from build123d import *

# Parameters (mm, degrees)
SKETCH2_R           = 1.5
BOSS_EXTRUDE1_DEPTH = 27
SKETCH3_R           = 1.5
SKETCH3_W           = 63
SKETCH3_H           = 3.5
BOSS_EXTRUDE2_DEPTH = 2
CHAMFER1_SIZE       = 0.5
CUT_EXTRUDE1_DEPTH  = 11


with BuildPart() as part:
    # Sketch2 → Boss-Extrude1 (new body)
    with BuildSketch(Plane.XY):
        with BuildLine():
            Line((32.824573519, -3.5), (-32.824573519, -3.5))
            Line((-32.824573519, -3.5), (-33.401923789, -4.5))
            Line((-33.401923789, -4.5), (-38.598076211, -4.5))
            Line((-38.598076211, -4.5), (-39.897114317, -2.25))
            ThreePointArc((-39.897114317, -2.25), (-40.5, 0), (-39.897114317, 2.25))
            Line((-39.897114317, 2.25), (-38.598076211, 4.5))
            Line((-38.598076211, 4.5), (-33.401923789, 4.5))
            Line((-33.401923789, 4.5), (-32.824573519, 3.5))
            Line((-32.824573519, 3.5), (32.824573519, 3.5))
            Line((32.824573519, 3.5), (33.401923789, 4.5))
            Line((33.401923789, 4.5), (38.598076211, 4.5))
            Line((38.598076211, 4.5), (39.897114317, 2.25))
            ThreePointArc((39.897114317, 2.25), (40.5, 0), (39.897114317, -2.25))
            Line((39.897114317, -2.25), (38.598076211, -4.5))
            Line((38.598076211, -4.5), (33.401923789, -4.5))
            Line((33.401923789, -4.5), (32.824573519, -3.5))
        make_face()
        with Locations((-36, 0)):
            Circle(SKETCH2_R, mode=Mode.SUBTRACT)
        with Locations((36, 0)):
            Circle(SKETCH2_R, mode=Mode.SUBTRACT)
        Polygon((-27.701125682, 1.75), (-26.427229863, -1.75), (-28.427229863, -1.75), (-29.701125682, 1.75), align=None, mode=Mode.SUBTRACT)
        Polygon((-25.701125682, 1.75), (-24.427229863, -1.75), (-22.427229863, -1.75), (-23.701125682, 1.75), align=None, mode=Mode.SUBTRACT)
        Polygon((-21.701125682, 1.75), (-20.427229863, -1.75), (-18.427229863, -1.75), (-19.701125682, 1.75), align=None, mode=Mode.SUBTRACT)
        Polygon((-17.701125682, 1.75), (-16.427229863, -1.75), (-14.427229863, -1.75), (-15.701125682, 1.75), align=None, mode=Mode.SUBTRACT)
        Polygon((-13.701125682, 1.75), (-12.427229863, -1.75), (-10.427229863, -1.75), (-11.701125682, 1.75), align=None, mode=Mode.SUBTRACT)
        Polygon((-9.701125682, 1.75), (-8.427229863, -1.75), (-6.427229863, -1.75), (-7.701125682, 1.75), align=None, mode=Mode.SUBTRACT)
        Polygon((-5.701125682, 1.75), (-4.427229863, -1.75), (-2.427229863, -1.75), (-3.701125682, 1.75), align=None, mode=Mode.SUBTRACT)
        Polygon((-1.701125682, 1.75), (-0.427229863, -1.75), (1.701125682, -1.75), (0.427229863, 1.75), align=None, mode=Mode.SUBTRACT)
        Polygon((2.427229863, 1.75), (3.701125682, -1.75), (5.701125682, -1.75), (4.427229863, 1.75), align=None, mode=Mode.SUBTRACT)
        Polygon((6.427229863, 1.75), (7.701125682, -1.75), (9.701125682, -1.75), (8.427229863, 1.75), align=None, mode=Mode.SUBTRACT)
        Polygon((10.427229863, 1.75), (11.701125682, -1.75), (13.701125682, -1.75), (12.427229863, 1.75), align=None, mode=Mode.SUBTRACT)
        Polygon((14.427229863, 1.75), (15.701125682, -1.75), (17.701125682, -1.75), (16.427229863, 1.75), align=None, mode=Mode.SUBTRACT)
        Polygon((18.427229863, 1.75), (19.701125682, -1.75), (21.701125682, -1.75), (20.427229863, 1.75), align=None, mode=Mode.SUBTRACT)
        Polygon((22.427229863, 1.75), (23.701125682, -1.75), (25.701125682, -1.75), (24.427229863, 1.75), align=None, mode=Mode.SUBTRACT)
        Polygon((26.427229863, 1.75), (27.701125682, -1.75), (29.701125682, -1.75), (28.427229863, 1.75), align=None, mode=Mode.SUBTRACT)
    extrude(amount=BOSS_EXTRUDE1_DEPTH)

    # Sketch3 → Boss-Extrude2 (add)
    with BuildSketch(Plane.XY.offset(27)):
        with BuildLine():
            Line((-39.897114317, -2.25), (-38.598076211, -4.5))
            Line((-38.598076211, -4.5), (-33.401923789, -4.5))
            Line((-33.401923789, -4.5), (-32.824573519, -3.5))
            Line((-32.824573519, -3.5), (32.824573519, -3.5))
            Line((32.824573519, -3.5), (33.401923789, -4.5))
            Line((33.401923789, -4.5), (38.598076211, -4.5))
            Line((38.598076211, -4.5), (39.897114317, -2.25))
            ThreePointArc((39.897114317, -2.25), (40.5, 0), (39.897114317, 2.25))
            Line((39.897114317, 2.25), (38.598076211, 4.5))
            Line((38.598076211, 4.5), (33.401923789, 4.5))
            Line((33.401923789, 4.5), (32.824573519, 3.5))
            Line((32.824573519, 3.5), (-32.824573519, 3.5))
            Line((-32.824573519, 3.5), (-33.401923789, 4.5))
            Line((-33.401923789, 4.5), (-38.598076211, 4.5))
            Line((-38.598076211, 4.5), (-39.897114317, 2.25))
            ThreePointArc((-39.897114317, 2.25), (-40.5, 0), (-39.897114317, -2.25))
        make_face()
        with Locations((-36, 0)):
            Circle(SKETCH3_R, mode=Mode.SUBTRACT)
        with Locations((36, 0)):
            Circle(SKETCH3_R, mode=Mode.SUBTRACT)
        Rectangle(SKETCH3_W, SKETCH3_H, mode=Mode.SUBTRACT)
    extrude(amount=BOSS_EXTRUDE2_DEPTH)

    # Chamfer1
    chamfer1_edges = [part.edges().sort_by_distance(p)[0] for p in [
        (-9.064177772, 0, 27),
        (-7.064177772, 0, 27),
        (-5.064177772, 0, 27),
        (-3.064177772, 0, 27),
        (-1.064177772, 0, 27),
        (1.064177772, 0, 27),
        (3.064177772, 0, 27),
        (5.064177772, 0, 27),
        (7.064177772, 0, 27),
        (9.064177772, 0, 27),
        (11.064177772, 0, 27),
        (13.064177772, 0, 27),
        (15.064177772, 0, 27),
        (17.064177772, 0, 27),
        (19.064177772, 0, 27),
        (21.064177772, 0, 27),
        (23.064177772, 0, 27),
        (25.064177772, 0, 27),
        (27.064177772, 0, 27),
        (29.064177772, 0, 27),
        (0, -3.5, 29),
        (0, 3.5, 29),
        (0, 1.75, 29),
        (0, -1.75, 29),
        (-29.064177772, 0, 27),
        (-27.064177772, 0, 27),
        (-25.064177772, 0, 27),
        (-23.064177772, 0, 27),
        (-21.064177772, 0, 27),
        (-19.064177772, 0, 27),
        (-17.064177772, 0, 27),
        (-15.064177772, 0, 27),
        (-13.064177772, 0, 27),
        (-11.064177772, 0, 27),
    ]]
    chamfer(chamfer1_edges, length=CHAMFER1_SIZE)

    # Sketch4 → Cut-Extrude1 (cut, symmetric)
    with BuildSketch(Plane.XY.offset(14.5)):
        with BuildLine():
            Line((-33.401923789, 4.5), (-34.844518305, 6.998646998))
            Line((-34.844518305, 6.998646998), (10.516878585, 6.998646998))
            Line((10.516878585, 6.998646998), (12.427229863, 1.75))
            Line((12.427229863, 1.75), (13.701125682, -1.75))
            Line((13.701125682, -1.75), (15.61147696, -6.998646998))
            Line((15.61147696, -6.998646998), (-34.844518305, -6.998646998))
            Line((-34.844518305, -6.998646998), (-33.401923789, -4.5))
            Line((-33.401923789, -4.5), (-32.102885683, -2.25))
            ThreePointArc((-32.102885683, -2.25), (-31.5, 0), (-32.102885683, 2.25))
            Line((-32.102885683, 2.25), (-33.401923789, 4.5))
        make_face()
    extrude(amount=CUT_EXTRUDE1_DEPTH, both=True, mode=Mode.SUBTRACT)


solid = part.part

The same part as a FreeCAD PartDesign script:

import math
import FreeCAD as App
import Part
import Sketcher
from FreeCAD import Vector
Q = App.Units.Quantity


def edges_at(feature, points):
    """Names of the edges that pass closest to the given points."""
    edges = feature.Shape.Edges
    near = lambda p: min(range(len(edges)), key=lambda i: edges[i].distToShape(Part.Vertex(*p))[0])
    return sorted({f"Edge{near(p) + 1}" for p in points})

doc = App.newDocument("Part")
params = doc.addObject("Spreadsheet::Sheet", "Params")
for row, (alias, value) in enumerate([
    ("sketch1_diameter", "3 mm"),
    ("sketch1_radius", "4.5 mm"),
    ("sketch1_width", "2 mm"),
    ("pad1_length", "27 mm"),
    ("sketch2_diameter", "3 mm"),
    ("sketch2_radius", "4.5 mm"),
    ("sketch2_width", "63 mm"),
    ("sketch2_height", "3.5 mm"),
    ("pad2_length", "2 mm"),
    ("chamfer_size", "0.5 mm"),
    ("sketch3_radius", "4.5 mm"),
    ("pocket1_length", "22 mm"),
], start=1):
    params.set(f"A{row}", alias)
    params.set(f"B{row}", "=" + value)
    params.setAlias(f"B{row}", alias)

body = doc.addObject("PartDesign::Body", "Body")

sketch1 = doc.addObject("Sketcher::SketchObject", "Sketch")
body.addObject(sketch1)
sketch1.AttachmentSupport = (doc.XY_Plane, [""])
sketch1.MapMode = "FlatFace"
sketch1.addGeometry([
    Part.LineSegment(Vector(-32.8, -3.5, 0), Vector(32.8, -3.5, 0)),
    Part.LineSegment(Vector(32.8, -3.5, 0), Vector(33.4, -4.5, 0)),
    Part.LineSegment(Vector(33.4, -4.5, 0), Vector(38.6, -4.5, 0)),
    Part.LineSegment(Vector(38.6, -4.5, 0), Vector(39.9, -2.2, 0)),
    Part.ArcOfCircle(Part.Circle(Vector(36, 0, 0), Vector(0, 0, 1), 4.5), math.radians(-30), math.radians(30)),
    Part.LineSegment(Vector(39.9, 2.2, 0), Vector(38.6, 4.5, 0)),
    Part.LineSegment(Vector(38.6, 4.5, 0), Vector(33.4, 4.5, 0)),
    Part.LineSegment(Vector(33.4, 4.5, 0), Vector(32.8, 3.5, 0)),
    Part.LineSegment(Vector(32.8, 3.5, 0), Vector(-32.8, 3.5, 0)),
    Part.LineSegment(Vector(-32.8, 3.5, 0), Vector(-33.4, 4.5, 0)),
    Part.LineSegment(Vector(-33.4, 4.5, 0), Vector(-38.6, 4.5, 0)),
    Part.LineSegment(Vector(-38.6, 4.5, 0), Vector(-39.9, 2.2, 0)),
    Part.ArcOfCircle(Part.Circle(Vector(-36, 0, 0), Vector(0, 0, 1), 4.5), math.radians(150), math.radians(210)),
    Part.LineSegment(Vector(-39.9, -2.2, 0), Vector(-38.6, -4.5, 0)),
    Part.LineSegment(Vector(-38.6, -4.5, 0), Vector(-33.4, -4.5, 0)),
    Part.LineSegment(Vector(-33.4, -4.5, 0), Vector(-32.8, -3.5, 0)),
    Part.Circle(Vector(36, 0, 0), Vector(0, 0, 1), 1.5),
    Part.LineSegment(Vector(26.4, 1.8, 0), Vector(28.4, 1.8, 0)),
    Part.LineSegment(Vector(28.4, 1.8, 0), Vector(29.7, -1.8, 0)),
    Part.LineSegment(Vector(29.7, -1.8, 0), Vector(27.7, -1.8, 0)),
    Part.LineSegment(Vector(27.7, -1.8, 0), Vector(26.4, 1.8, 0)),
    Part.LineSegment(Vector(22.4, 1.8, 0), Vector(24.4, 1.8, 0)),
    Part.LineSegment(Vector(24.4, 1.8, 0), Vector(25.7, -1.8, 0)),
    Part.LineSegment(Vector(25.7, -1.8, 0), Vector(23.7, -1.8, 0)),
    Part.LineSegment(Vector(23.7, -1.8, 0), Vector(22.4, 1.8, 0)),
    Part.LineSegment(Vector(18.4, 1.8, 0), Vector(20.4, 1.8, 0)),
    Part.LineSegment(Vector(20.4, 1.8, 0), Vector(21.7, -1.8, 0)),
    Part.LineSegment(Vector(21.7, -1.8, 0), Vector(19.7, -1.8, 0)),
    Part.LineSegment(Vector(19.7, -1.8, 0), Vector(18.4, 1.8, 0)),
    Part.LineSegment(Vector(14.4, 1.8, 0), Vector(16.4, 1.8, 0)),
    Part.LineSegment(Vector(16.4, 1.8, 0), Vector(17.7, -1.8, 0)),
    Part.LineSegment(Vector(17.7, -1.8, 0), Vector(15.7, -1.8, 0)),
    Part.LineSegment(Vector(15.7, -1.8, 0), Vector(14.4, 1.8, 0)),
    Part.LineSegment(Vector(10.4, 1.8, 0), Vector(12.4, 1.8, 0)),
    Part.LineSegment(Vector(12.4, 1.8, 0), Vector(13.7, -1.8, 0)),
    Part.LineSegment(Vector(13.7, -1.8, 0), Vector(11.7, -1.8, 0)),
    Part.LineSegment(Vector(11.7, -1.8, 0), Vector(10.4, 1.8, 0)),
    Part.LineSegment(Vector(6.4, 1.8, 0), Vector(8.4, 1.8, 0)),
    Part.LineSegment(Vector(8.4, 1.8, 0), Vector(9.7, -1.8, 0)),
    Part.LineSegment(Vector(9.7, -1.8, 0), Vector(7.7, -1.8, 0)),
    Part.LineSegment(Vector(7.7, -1.8, 0), Vector(6.4, 1.8, 0)),
    Part.LineSegment(Vector(2.4, 1.8, 0), Vector(4.4, 1.8, 0)),
    Part.LineSegment(Vector(4.4, 1.8, 0), Vector(5.7, -1.8, 0)),
    Part.LineSegment(Vector(5.7, -1.8, 0), Vector(3.7, -1.8, 0)),
    Part.LineSegment(Vector(3.7, -1.8, 0), Vector(2.4, 1.8, 0)),
    Part.LineSegment(Vector(-1.7, 1.8, 0), Vector(0.4, 1.8, 0)),
    Part.LineSegment(Vector(0.4, 1.8, 0), Vector(1.7, -1.8, 0)),
    Part.LineSegment(Vector(1.7, -1.8, 0), Vector(-0.4, -1.8, 0)),
    Part.LineSegment(Vector(-0.4, -1.8, 0), Vector(-1.7, 1.8, 0)),
    Part.LineSegment(Vector(-5.7, 1.8, 0), Vector(-3.7, 1.8, 0)),
    Part.LineSegment(Vector(-3.7, 1.8, 0), Vector(-2.4, -1.8, 0)),
    Part.LineSegment(Vector(-2.4, -1.8, 0), Vector(-4.4, -1.8, 0)),
    Part.LineSegment(Vector(-4.4, -1.8, 0), Vector(-5.7, 1.8, 0)),
    Part.LineSegment(Vector(-9.7, 1.8, 0), Vector(-7.7, 1.8, 0)),
    Part.LineSegment(Vector(-7.7, 1.8, 0), Vector(-6.4, -1.8, 0)),
    Part.LineSegment(Vector(-6.4, -1.8, 0), Vector(-8.4, -1.8, 0)),
    Part.LineSegment(Vector(-8.4, -1.8, 0), Vector(-9.7, 1.8, 0)),
    Part.LineSegment(Vector(-13.7, 1.8, 0), Vector(-11.7, 1.8, 0)),
    Part.LineSegment(Vector(-11.7, 1.8, 0), Vector(-10.4, -1.8, 0)),
    Part.LineSegment(Vector(-10.4, -1.8, 0), Vector(-12.4, -1.8, 0)),
    Part.LineSegment(Vector(-12.4, -1.8, 0), Vector(-13.7, 1.8, 0)),
    Part.LineSegment(Vector(-17.7, 1.8, 0), Vector(-15.7, 1.8, 0)),
    Part.LineSegment(Vector(-15.7, 1.8, 0), Vector(-14.4, -1.8, 0)),
    Part.LineSegment(Vector(-14.4, -1.8, 0), Vector(-16.4, -1.8, 0)),
    Part.LineSegment(Vector(-16.4, -1.8, 0), Vector(-17.7, 1.8, 0)),
    Part.LineSegment(Vector(-21.7, 1.8, 0), Vector(-19.7, 1.8, 0)),
    Part.LineSegment(Vector(-19.7, 1.8, 0), Vector(-18.4, -1.8, 0)),
    Part.LineSegment(Vector(-18.4, -1.8, 0), Vector(-20.4, -1.8, 0)),
    Part.LineSegment(Vector(-20.4, -1.8, 0), Vector(-21.7, 1.8, 0)),
    Part.LineSegment(Vector(-25.7, 1.8, 0), Vector(-23.7, 1.8, 0)),
    Part.LineSegment(Vector(-23.7, 1.8, 0), Vector(-22.4, -1.8, 0)),
    Part.LineSegment(Vector(-22.4, -1.8, 0), Vector(-24.4, -1.8, 0)),
    Part.LineSegment(Vector(-24.4, -1.8, 0), Vector(-25.7, 1.8, 0)),
    Part.LineSegment(Vector(-27.7, 1.8, 0), Vector(-26.4, -1.8, 0)),
    Part.LineSegment(Vector(-26.4, -1.8, 0), Vector(-28.4, -1.8, 0)),
    Part.LineSegment(Vector(-28.4, -1.8, 0), Vector(-29.7, 1.8, 0)),
    Part.LineSegment(Vector(-29.7, 1.8, 0), Vector(-27.7, 1.8, 0)),
    Part.Circle(Vector(-36, 0, 0), Vector(0, 0, 1), 1.5),
], False)
sketch1.addConstraint([
    Sketcher.Constraint("Coincident", 0, 2, 1, 1),
    Sketcher.Constraint("Coincident", 1, 2, 2, 1),
    Sketcher.Constraint("Coincident", 2, 2, 3, 1),
    Sketcher.Constraint("Tangent", 3, 2, 4, 1),
    Sketcher.Constraint("Tangent", 4, 2, 5, 1),
    Sketcher.Constraint("Coincident", 5, 2, 6, 1),
    Sketcher.Constraint("Coincident", 6, 2, 7, 1),
    Sketcher.Constraint("Coincident", 7, 2, 8, 1),
    Sketcher.Constraint("Coincident", 8, 2, 9, 1),
    Sketcher.Constraint("Coincident", 9, 2, 10, 1),
    Sketcher.Constraint("Coincident", 10, 2, 11, 1),
    Sketcher.Constraint("Tangent", 11, 2, 12, 1),
    Sketcher.Constraint("Tangent", 12, 2, 13, 1),
    Sketcher.Constraint("Coincident", 13, 2, 14, 1),
    Sketcher.Constraint("Coincident", 14, 2, 15, 1),
    Sketcher.Constraint("Coincident", 15, 2, 0, 1),
    Sketcher.Constraint("Coincident", 17, 2, 18, 1),
    Sketcher.Constraint("Coincident", 18, 2, 19, 1),
    Sketcher.Constraint("Coincident", 19, 2, 20, 1),
    Sketcher.Constraint("Coincident", 20, 2, 17, 1),
    Sketcher.Constraint("Coincident", 21, 2, 22, 1),
    Sketcher.Constraint("Coincident", 22, 2, 23, 1),
    Sketcher.Constraint("Coincident", 23, 2, 24, 1),
    Sketcher.Constraint("Coincident", 24, 2, 21, 1),
    Sketcher.Constraint("Coincident", 25, 2, 26, 1),
    Sketcher.Constraint("Coincident", 26, 2, 27, 1),
    Sketcher.Constraint("Coincident", 27, 2, 28, 1),
    Sketcher.Constraint("Coincident", 28, 2, 25, 1),
    Sketcher.Constraint("Coincident", 29, 2, 30, 1),
    Sketcher.Constraint("Coincident", 30, 2, 31, 1),
    Sketcher.Constraint("Coincident", 31, 2, 32, 1),
    Sketcher.Constraint("Coincident", 32, 2, 29, 1),
    Sketcher.Constraint("Coincident", 33, 2, 34, 1),
    Sketcher.Constraint("Coincident", 34, 2, 35, 1),
    Sketcher.Constraint("Coincident", 35, 2, 36, 1),
    Sketcher.Constraint("Coincident", 36, 2, 33, 1),
    Sketcher.Constraint("Coincident", 37, 2, 38, 1),
    Sketcher.Constraint("Coincident", 38, 2, 39, 1),
    Sketcher.Constraint("Coincident", 39, 2, 40, 1),
    Sketcher.Constraint("Coincident", 40, 2, 37, 1),
    Sketcher.Constraint("Coincident", 41, 2, 42, 1),
    Sketcher.Constraint("Coincident", 42, 2, 43, 1),
    Sketcher.Constraint("Coincident", 43, 2, 44, 1),
    Sketcher.Constraint("Coincident", 44, 2, 41, 1),
    Sketcher.Constraint("Coincident", 45, 2, 46, 1),
    Sketcher.Constraint("Coincident", 46, 2, 47, 1),
    Sketcher.Constraint("Coincident", 47, 2, 48, 1),
    Sketcher.Constraint("Coincident", 48, 2, 45, 1),
    Sketcher.Constraint("Coincident", 49, 2, 50, 1),
    Sketcher.Constraint("Coincident", 50, 2, 51, 1),
    Sketcher.Constraint("Coincident", 51, 2, 52, 1),
    Sketcher.Constraint("Coincident", 52, 2, 49, 1),
    Sketcher.Constraint("Coincident", 53, 2, 54, 1),
    Sketcher.Constraint("Coincident", 54, 2, 55, 1),
    Sketcher.Constraint("Coincident", 55, 2, 56, 1),
    Sketcher.Constraint("Coincident", 56, 2, 53, 1),
    Sketcher.Constraint("Coincident", 57, 2, 58, 1),
    Sketcher.Constraint("Coincident", 58, 2, 59, 1),
    Sketcher.Constraint("Coincident", 59, 2, 60, 1),
    Sketcher.Constraint("Coincident", 60, 2, 57, 1),
    Sketcher.Constraint("Coincident", 61, 2, 62, 1),
    Sketcher.Constraint("Coincident", 62, 2, 63, 1),
    Sketcher.Constraint("Coincident", 63, 2, 64, 1),
    Sketcher.Constraint("Coincident", 64, 2, 61, 1),
    Sketcher.Constraint("Coincident", 65, 2, 66, 1),
    Sketcher.Constraint("Coincident", 66, 2, 67, 1),
    Sketcher.Constraint("Coincident", 67, 2, 68, 1),
    Sketcher.Constraint("Coincident", 68, 2, 65, 1),
    Sketcher.Constraint("Coincident", 69, 2, 70, 1),
    Sketcher.Constraint("Coincident", 70, 2, 71, 1),
    Sketcher.Constraint("Coincident", 71, 2, 72, 1),
    Sketcher.Constraint("Coincident", 72, 2, 69, 1),
    Sketcher.Constraint("Coincident", 73, 2, 74, 1),
    Sketcher.Constraint("Coincident", 74, 2, 75, 1),
    Sketcher.Constraint("Coincident", 75, 2, 76, 1),
    Sketcher.Constraint("Coincident", 76, 2, 73, 1),
    Sketcher.Constraint("Horizontal", 0),
    Sketcher.Constraint("Horizontal", 2),
    Sketcher.Constraint("Horizontal", 6),
    Sketcher.Constraint("Horizontal", 8),
    Sketcher.Constraint("Horizontal", 10),
    Sketcher.Constraint("Horizontal", 14),
    Sketcher.Constraint("Horizontal", 17),
    Sketcher.Constraint("Horizontal", 19),
    Sketcher.Constraint("Horizontal", 21),
    Sketcher.Constraint("Horizontal", 23),
    Sketcher.Constraint("Horizontal", 25),
    Sketcher.Constraint("Horizontal", 27),
    Sketcher.Constraint("Horizontal", 29),
    Sketcher.Constraint("Horizontal", 31),
    Sketcher.Constraint("Horizontal", 33),
    Sketcher.Constraint("Horizontal", 35),
    Sketcher.Constraint("Horizontal", 37),
    Sketcher.Constraint("Horizontal", 39),
    Sketcher.Constraint("Horizontal", 41),
    Sketcher.Constraint("Horizontal", 43),
    Sketcher.Constraint("Horizontal", 45),
    Sketcher.Constraint("Horizontal", 47),
    Sketcher.Constraint("Horizontal", 49),
    Sketcher.Constraint("Horizontal", 51),
    Sketcher.Constraint("Horizontal", 53),
    Sketcher.Constraint("Horizontal", 55),
    Sketcher.Constraint("Horizontal", 57),
    Sketcher.Constraint("Horizontal", 59),
    Sketcher.Constraint("Horizontal", 61),
    Sketcher.Constraint("Horizontal", 63),
    Sketcher.Constraint("Horizontal", 65),
    Sketcher.Constraint("Horizontal", 67),
    Sketcher.Constraint("Horizontal", 69),
    Sketcher.Constraint("Horizontal", 71),
    Sketcher.Constraint("Horizontal", 74),
    Sketcher.Constraint("Horizontal", 76),
    Sketcher.Constraint("Coincident", 16, 3, 4, 3),
    Sketcher.Constraint("Coincident", 77, 3, 12, 3),
    Sketcher.Constraint("Equal", 4, 12),
    Sketcher.Constraint("Equal", 16, 77),
    Sketcher.Constraint("Symmetric", 4, 3, 12, 3, -1, 1),
    Sketcher.Constraint("Symmetric", 0, 2, 8, 2, -1, 1),
    Sketcher.Constraint("Symmetric", 1, 2, 9, 2, -1, 1),
    Sketcher.Constraint("Symmetric", 5, 2, 13, 2, -1, 1),
    Sketcher.Constraint("Symmetric", 45, 2, 47, 2, -1, 1),
    Sketcher.Constraint("Symmetric", 43, 2, 49, 2, -1, 1),
    Sketcher.Constraint("Symmetric", 44, 2, 50, 2, -1, 1),
    Sketcher.Constraint("Symmetric", 39, 2, 53, 2, -1, 1),
    Sketcher.Constraint("Symmetric", 40, 2, 54, 2, -1, 1),
    Sketcher.Constraint("Symmetric", 35, 2, 57, 2, -1, 1),
    Sketcher.Constraint("Symmetric", 36, 2, 58, 2, -1, 1),
    Sketcher.Constraint("Symmetric", 31, 2, 61, 2, -1, 1),
    Sketcher.Constraint("Symmetric", 32, 2, 62, 2, -1, 1),
    Sketcher.Constraint("Symmetric", 27, 2, 65, 2, -1, 1),
    Sketcher.Constraint("Symmetric", 28, 2, 66, 2, -1, 1),
    Sketcher.Constraint("Symmetric", 23, 2, 69, 2, -1, 1),
    Sketcher.Constraint("Symmetric", 24, 2, 70, 2, -1, 1),
    Sketcher.Constraint("Symmetric", 20, 2, 73, 2, -1, 1),
    Sketcher.Constraint("Symmetric", 18, 2, 75, 2, -1, 1),
    Sketcher.Constraint("Symmetric", 6, 2, 9, 2, -2),
    Sketcher.Constraint("Symmetric", 4, 2, 11, 2, -2),
    Sketcher.Constraint("Parallel", 1, 5),
    Sketcher.Constraint("Parallel", 3, 7),
    Sketcher.Constraint("Parallel", 7, 11),
    Sketcher.Constraint("Parallel", 11, 15),
    Sketcher.Constraint("Parallel", 18, 20),
    Sketcher.Constraint("Parallel", 20, 22),
    Sketcher.Constraint("Parallel", 22, 24),
    Sketcher.Constraint("Parallel", 24, 26),
    Sketcher.Constraint("Parallel", 26, 28),
    Sketcher.Constraint("Parallel", 28, 30),
    Sketcher.Constraint("Parallel", 30, 32),
    Sketcher.Constraint("Parallel", 32, 34),
    Sketcher.Constraint("Parallel", 34, 36),
    Sketcher.Constraint("Parallel", 36, 38),
    Sketcher.Constraint("Parallel", 38, 40),
    Sketcher.Constraint("Parallel", 40, 42),
    Sketcher.Constraint("Parallel", 42, 44),
    Sketcher.Constraint("Parallel", 44, 46),
    Sketcher.Constraint("Parallel", 46, 48),
    Sketcher.Constraint("Parallel", 50, 52),
    Sketcher.Constraint("Parallel", 54, 56),
    Sketcher.Constraint("Parallel", 58, 60),
    Sketcher.Constraint("Parallel", 62, 64),
    Sketcher.Constraint("Parallel", 66, 68),
    Sketcher.Constraint("Parallel", 70, 72),
    Sketcher.Constraint("Parallel", 72, 73),
    Sketcher.Constraint("Parallel", 73, 75),
    Sketcher.Constraint("Horizontal", 20, 2, 21, 2),
    Sketcher.Constraint("Horizontal", 19, 2, 22, 2),
    Sketcher.Constraint("Horizontal", 24, 2, 25, 2),
    Sketcher.Constraint("Horizontal", 23, 2, 26, 2),
    Sketcher.Constraint("Horizontal", 28, 2, 29, 2),
    Sketcher.Constraint("Horizontal", 27, 2, 30, 2),
    Sketcher.Constraint("Horizontal", 32, 2, 33, 2),
    Sketcher.Constraint("Horizontal", 31, 2, 34, 2),
    Sketcher.Constraint("Horizontal", 36, 2, 37, 2),
    Sketcher.Constraint("Horizontal", 35, 2, 38, 2),
    Sketcher.Constraint("Horizontal", 40, 2, 41, 2),
    Sketcher.Constraint("Horizontal", 39, 2, 42, 2),
    Sketcher.Constraint("Horizontal", 44, 2, 45, 2),
    Sketcher.Constraint("Horizontal", 43, 2, 46, 2),
    Sketcher.Constraint("Vertical", 9, 2, 14, 2),
    Sketcher.Constraint("Equal", 19, 21),
    Sketcher.Constraint("Equal", 23, 25),
    Sketcher.Constraint("Equal", 27, 29),
    Sketcher.Constraint("Equal", 31, 33),
    Sketcher.Constraint("Equal", 35, 37),
    Sketcher.Constraint("Equal", 39, 41),
    Sketcher.Constraint("Equal", 43, 49),
    Sketcher.Constraint("Equal", 51, 53),
    Sketcher.Constraint("Equal", 55, 57),
    Sketcher.Constraint("Equal", 59, 61),
    Sketcher.Constraint("Equal", 63, 65),
    Sketcher.Constraint("Equal", 67, 69),
    Sketcher.Constraint("Diameter", 16, 3.0),
    Sketcher.Constraint("Radius", 4, 4.5),
    Sketcher.Constraint("DistanceX", 17, 1, 17, 2, 2.0),
    Sketcher.Constraint("Angle", 1, Q("-60 deg")),
    Sketcher.Constraint("Angle", 18, Q("-70 deg")),
    Sketcher.Constraint("DistanceX", -1, 1, 4, 3, 36.0),
    Sketcher.Constraint("DistanceY", 0, 2, -1, 1, 3.5),
    Sketcher.Constraint("DistanceY", 1, 2, -1, 1, 4.5),
    Sketcher.Constraint("DistanceY", -1, 1, 17, 2, 1.75),
    Sketcher.Constraint("DistanceX", 0, 1, 0, 2, 65.649147),
    Sketcher.Constraint("DistanceX", 45, 1, 45, 2, 2.128356),
    Sketcher.Constraint("DistanceX", -1, 1, 17, 2, 28.42723),
    Sketcher.Constraint("DistanceX", -1, 1, 21, 2, 24.42723),
    Sketcher.Constraint("DistanceX", -1, 1, 25, 2, 20.42723),
    Sketcher.Constraint("DistanceX", -1, 1, 29, 2, 16.42723),
    Sketcher.Constraint("DistanceX", -1, 1, 33, 2, 12.42723),
    Sketcher.Constraint("DistanceX", -1, 1, 37, 2, 8.42723),
    Sketcher.Constraint("DistanceX", -1, 1, 41, 2, 4.42723),
])
sketch1.setExpression("Constraints[191]", "Params.sketch1_diameter")
sketch1.setExpression("Constraints[192]", "Params.sketch1_radius")
sketch1.setExpression("Constraints[193]", "Params.sketch1_width")
pad1 = doc.addObject("PartDesign::Pad", "Pad")
body.addObject(pad1)
pad1.Profile = sketch1
pad1.setExpression("Length", "Params.pad1_length")

sketch2 = doc.addObject("Sketcher::SketchObject", "Sketch001")
body.addObject(sketch2)
sketch2.AttachmentSupport = (doc.XY_Plane, [""])
sketch2.MapMode = "FlatFace"
sketch2.AttachmentOffset = App.Placement(Vector(0, 0, 27), App.Rotation())
sketch2.addGeometry([
    Part.LineSegment(Vector(-39.9, -2.2, 0), Vector(-38.6, -4.5, 0)),
    Part.LineSegment(Vector(-38.6, -4.5, 0), Vector(-33.4, -4.5, 0)),
    Part.LineSegment(Vector(-33.4, -4.5, 0), Vector(-32.8, -3.5, 0)),
    Part.LineSegment(Vector(-32.8, -3.5, 0), Vector(32.8, -3.5, 0)),
    Part.LineSegment(Vector(32.8, -3.5, 0), Vector(33.4, -4.5, 0)),
    Part.LineSegment(Vector(33.4, -4.5, 0), Vector(38.6, -4.5, 0)),
    Part.LineSegment(Vector(38.6, -4.5, 0), Vector(39.9, -2.2, 0)),
    Part.ArcOfCircle(Part.Circle(Vector(36, 0, 0), Vector(0, 0, 1), 4.5), math.radians(-30), math.radians(30)),
    Part.LineSegment(Vector(39.9, 2.2, 0), Vector(38.6, 4.5, 0)),
    Part.LineSegment(Vector(38.6, 4.5, 0), Vector(33.4, 4.5, 0)),
    Part.LineSegment(Vector(33.4, 4.5, 0), Vector(32.8, 3.5, 0)),
    Part.LineSegment(Vector(32.8, 3.5, 0), Vector(-32.8, 3.5, 0)),
    Part.LineSegment(Vector(-32.8, 3.5, 0), Vector(-33.4, 4.5, 0)),
    Part.LineSegment(Vector(-33.4, 4.5, 0), Vector(-38.6, 4.5, 0)),
    Part.LineSegment(Vector(-38.6, 4.5, 0), Vector(-39.9, 2.2, 0)),
    Part.ArcOfCircle(Part.Circle(Vector(-36, 0, 0), Vector(0, 0, 1), 4.5), math.radians(150), math.radians(210)),
    Part.Circle(Vector(-36, 0, 0), Vector(0, 0, 1), 1.5),
    Part.LineSegment(Vector(31.5, -1.8, 0), Vector(-31.5, -1.8, 0)),
    Part.LineSegment(Vector(-31.5, -1.8, 0), Vector(-31.5, 1.8, 0)),
    Part.LineSegment(Vector(-31.5, 1.8, 0), Vector(31.5, 1.8, 0)),
    Part.LineSegment(Vector(31.5, 1.8, 0), Vector(31.5, -1.8, 0)),
    Part.Circle(Vector(36, 0, 0), Vector(0, 0, 1), 1.5),
], False)
sketch2.addConstraint([
    Sketcher.Constraint("Coincident", 0, 2, 1, 1),
    Sketcher.Constraint("Coincident", 1, 2, 2, 1),
    Sketcher.Constraint("Coincident", 2, 2, 3, 1),
    Sketcher.Constraint("Coincident", 3, 2, 4, 1),
    Sketcher.Constraint("Coincident", 4, 2, 5, 1),
    Sketcher.Constraint("Coincident", 5, 2, 6, 1),
    Sketcher.Constraint("Tangent", 6, 2, 7, 1),
    Sketcher.Constraint("Tangent", 7, 2, 8, 1),
    Sketcher.Constraint("Coincident", 8, 2, 9, 1),
    Sketcher.Constraint("Coincident", 9, 2, 10, 1),
    Sketcher.Constraint("Coincident", 10, 2, 11, 1),
    Sketcher.Constraint("Coincident", 11, 2, 12, 1),
    Sketcher.Constraint("Coincident", 12, 2, 13, 1),
    Sketcher.Constraint("Coincident", 13, 2, 14, 1),
    Sketcher.Constraint("Tangent", 14, 2, 15, 1),
    Sketcher.Constraint("Tangent", 15, 2, 0, 1),
    Sketcher.Constraint("Coincident", 17, 2, 18, 1),
    Sketcher.Constraint("Coincident", 18, 2, 19, 1),
    Sketcher.Constraint("Coincident", 19, 2, 20, 1),
    Sketcher.Constraint("Coincident", 20, 2, 17, 1),
    Sketcher.Constraint("Horizontal", 1),
    Sketcher.Constraint("Horizontal", 3),
    Sketcher.Constraint("Horizontal", 5),
    Sketcher.Constraint("Horizontal", 9),
    Sketcher.Constraint("Horizontal", 11),
    Sketcher.Constraint("Horizontal", 13),
    Sketcher.Constraint("Horizontal", 17),
    Sketcher.Constraint("Vertical", 18),
    Sketcher.Constraint("Horizontal", 19),
    Sketcher.Constraint("Vertical", 20),
    Sketcher.Constraint("Coincident", 16, 3, 15, 3),
    Sketcher.Constraint("Coincident", 21, 3, 7, 3),
    Sketcher.Constraint("Equal", 7, 15),
    Sketcher.Constraint("Equal", 16, 21),
    Sketcher.Constraint("Symmetric", 7, 3, 15, 3, -1, 1),
    Sketcher.Constraint("Symmetric", 0, 2, 8, 2, -1, 1),
    Sketcher.Constraint("Symmetric", 2, 2, 10, 2, -1, 1),
    Sketcher.Constraint("Symmetric", 4, 2, 12, 2, -1, 1),
    Sketcher.Constraint("Symmetric", 17, 2, 19, 2, -1, 1),
    Sketcher.Constraint("Symmetric", 1, 2, 4, 2, -2),
    Sketcher.Constraint("Symmetric", 7, 2, 14, 2, -2),
    Sketcher.Constraint("Parallel", 0, 4),
    Sketcher.Constraint("Parallel", 2, 6),
    Sketcher.Constraint("Parallel", 6, 10),
    Sketcher.Constraint("Parallel", 8, 12),
    Sketcher.Constraint("Parallel", 10, 14),
    Sketcher.Constraint("Diameter", 16, 3.0),
    Sketcher.Constraint("Radius", 7, 4.5),
    Sketcher.Constraint("DistanceX", 17, 2, 17, 1, 63.0),
    Sketcher.Constraint("Angle", 0, Q("-60 deg")),
    Sketcher.Constraint("DistanceY", 18, 1, 18, 2, 3.5),
    Sketcher.Constraint("DistanceX", -1, 1, 7, 3, 36.0),
    Sketcher.Constraint("DistanceY", 1, 2, 2, 2, 1.0),
    Sketcher.Constraint("DistanceY", 5, 2, 8, 2, 9.0),
    Sketcher.Constraint("DistanceX", 1, 1, 1, 2, 5.196152),
])
sketch2.setExpression("Constraints[46]", "Params.sketch2_diameter")
sketch2.setExpression("Constraints[47]", "Params.sketch2_radius")
sketch2.setExpression("Constraints[48]", "Params.sketch2_width")
sketch2.setExpression("Constraints[50]", "Params.sketch2_height")
pad2 = doc.addObject("PartDesign::Pad", "Pad001")
body.addObject(pad2)
pad2.Profile = sketch2
pad2.setExpression("Length", "Params.pad2_length")
doc.recompute()

chamfer = doc.addObject("PartDesign::Chamfer", "Chamfer")
body.addObject(chamfer)
chamfer.Base = (pad2, edges_at(pad2, [
    (-9.064, 0, 27),
    (-7.064, 0, 27),
    (-5.064, 0, 27),
    (-3.064, 0, 27),
    (-1.064, 0, 27),
    (1.064, 0, 27),
    (3.064, 0, 27),
    (5.064, 0, 27),
    (7.064, 0, 27),
    (9.064, 0, 27),
    (11.064, 0, 27),
    (13.064, 0, 27),
    (15.064, 0, 27),
    (17.064, 0, 27),
    (19.064, 0, 27),
    (21.064, 0, 27),
    (23.064, 0, 27),
    (25.064, 0, 27),
    (27.064, 0, 27),
    (29.064, 0, 27),
    (0, -3.5, 29),
    (0, 3.5, 29),
    (0, 1.75, 29),
    (0, -1.75, 29),
    (-29.064, 0, 27),
    (-27.064, 0, 27),
    (-25.064, 0, 27),
    (-23.064, 0, 27),
    (-21.064, 0, 27),
    (-19.064, 0, 27),
    (-17.064, 0, 27),
    (-15.064, 0, 27),
    (-13.064, 0, 27),
    (-11.064, 0, 27),
]))
chamfer.setExpression("Size", "Params.chamfer_size")

sketch3 = doc.addObject("Sketcher::SketchObject", "Sketch002")
body.addObject(sketch3)
sketch3.AttachmentSupport = (doc.XY_Plane, [""])
sketch3.MapMode = "FlatFace"
sketch3.AttachmentOffset = App.Placement(Vector(0, 0, 14.5), App.Rotation())
sketch3.addGeometry([
    Part.LineSegment(Vector(-34.8, 7, 0), Vector(-33.4, 4.5, 0)),
    Part.LineSegment(Vector(-33.4, 4.5, 0), Vector(-32.1, 2.2, 0)),
    Part.ArcOfCircle(Part.Circle(Vector(-36, 0, 0), Vector(0, 0, 1), 4.5), math.radians(-30), math.radians(30)),
    Part.LineSegment(Vector(-32.1, -2.2, 0), Vector(-33.4, -4.5, 0)),
    Part.LineSegment(Vector(-33.4, -4.5, 0), Vector(-34.8, -7, 0)),
    Part.LineSegment(Vector(-34.8, -7, 0), Vector(15.6, -7, 0)),
    Part.LineSegment(Vector(15.6, -7, 0), Vector(13.7, -1.8, 0)),
    Part.LineSegment(Vector(13.7, -1.8, 0), Vector(12.4, 1.8, 0)),
    Part.LineSegment(Vector(12.4, 1.8, 0), Vector(10.5, 7, 0)),
    Part.LineSegment(Vector(10.5, 7, 0), Vector(-34.8, 7, 0)),
], False)
sketch3.addConstraint([
    Sketcher.Constraint("Coincident", 0, 2, 1, 1),
    Sketcher.Constraint("Tangent", 1, 2, 2, 2),
    Sketcher.Constraint("Tangent", 2, 1, 3, 1),
    Sketcher.Constraint("Coincident", 3, 2, 4, 1),
    Sketcher.Constraint("Coincident", 4, 2, 5, 1),
    Sketcher.Constraint("Coincident", 5, 2, 6, 1),
    Sketcher.Constraint("Coincident", 6, 2, 7, 1),
    Sketcher.Constraint("Coincident", 7, 2, 8, 1),
    Sketcher.Constraint("Coincident", 8, 2, 9, 1),
    Sketcher.Constraint("Coincident", 9, 2, 0, 1),
    Sketcher.Constraint("Horizontal", 5),
    Sketcher.Constraint("Horizontal", 9),
    Sketcher.Constraint("Symmetric", 1, 2, 2, 1, -1),
    Sketcher.Constraint("Symmetric", 4, 2, 9, 2, -1),
    Sketcher.Constraint("Parallel", 0, 1),
    Sketcher.Constraint("Parallel", 6, 7),
    Sketcher.Constraint("Parallel", 7, 8),
    Sketcher.Constraint("Vertical", 0, 2, 3, 2),
    Sketcher.Constraint("Equal", 6, 8),
    Sketcher.Constraint("Radius", 2, 4.5),
    Sketcher.Constraint("Angle", 0, Q("-60 deg")),
    Sketcher.Constraint("Angle", 6, Q("110 deg")),
    Sketcher.Constraint("DistanceX", 2, 3, -1, 1, 36.0),
    Sketcher.Constraint("DistanceY", 3, 2, 0, 2, 9.0),
    Sketcher.Constraint("DistanceY", 6, 2, 1, 2, 4.0),
    Sketcher.Constraint("DistanceX", 3, 2, 5, 2, 49.013401),
    Sketcher.Constraint("DistanceX", 8, 2, 5, 2, 5.094598),
])
sketch3.setExpression("Constraints[19]", "Params.sketch3_radius")
pocket1 = doc.addObject("PartDesign::Pocket", "Pocket")
body.addObject(pocket1)
pocket1.Profile = sketch3
pocket1.setExpression("Length", "Params.pocket1_length")
pocket1.Midplane = True

doc.recompute()
